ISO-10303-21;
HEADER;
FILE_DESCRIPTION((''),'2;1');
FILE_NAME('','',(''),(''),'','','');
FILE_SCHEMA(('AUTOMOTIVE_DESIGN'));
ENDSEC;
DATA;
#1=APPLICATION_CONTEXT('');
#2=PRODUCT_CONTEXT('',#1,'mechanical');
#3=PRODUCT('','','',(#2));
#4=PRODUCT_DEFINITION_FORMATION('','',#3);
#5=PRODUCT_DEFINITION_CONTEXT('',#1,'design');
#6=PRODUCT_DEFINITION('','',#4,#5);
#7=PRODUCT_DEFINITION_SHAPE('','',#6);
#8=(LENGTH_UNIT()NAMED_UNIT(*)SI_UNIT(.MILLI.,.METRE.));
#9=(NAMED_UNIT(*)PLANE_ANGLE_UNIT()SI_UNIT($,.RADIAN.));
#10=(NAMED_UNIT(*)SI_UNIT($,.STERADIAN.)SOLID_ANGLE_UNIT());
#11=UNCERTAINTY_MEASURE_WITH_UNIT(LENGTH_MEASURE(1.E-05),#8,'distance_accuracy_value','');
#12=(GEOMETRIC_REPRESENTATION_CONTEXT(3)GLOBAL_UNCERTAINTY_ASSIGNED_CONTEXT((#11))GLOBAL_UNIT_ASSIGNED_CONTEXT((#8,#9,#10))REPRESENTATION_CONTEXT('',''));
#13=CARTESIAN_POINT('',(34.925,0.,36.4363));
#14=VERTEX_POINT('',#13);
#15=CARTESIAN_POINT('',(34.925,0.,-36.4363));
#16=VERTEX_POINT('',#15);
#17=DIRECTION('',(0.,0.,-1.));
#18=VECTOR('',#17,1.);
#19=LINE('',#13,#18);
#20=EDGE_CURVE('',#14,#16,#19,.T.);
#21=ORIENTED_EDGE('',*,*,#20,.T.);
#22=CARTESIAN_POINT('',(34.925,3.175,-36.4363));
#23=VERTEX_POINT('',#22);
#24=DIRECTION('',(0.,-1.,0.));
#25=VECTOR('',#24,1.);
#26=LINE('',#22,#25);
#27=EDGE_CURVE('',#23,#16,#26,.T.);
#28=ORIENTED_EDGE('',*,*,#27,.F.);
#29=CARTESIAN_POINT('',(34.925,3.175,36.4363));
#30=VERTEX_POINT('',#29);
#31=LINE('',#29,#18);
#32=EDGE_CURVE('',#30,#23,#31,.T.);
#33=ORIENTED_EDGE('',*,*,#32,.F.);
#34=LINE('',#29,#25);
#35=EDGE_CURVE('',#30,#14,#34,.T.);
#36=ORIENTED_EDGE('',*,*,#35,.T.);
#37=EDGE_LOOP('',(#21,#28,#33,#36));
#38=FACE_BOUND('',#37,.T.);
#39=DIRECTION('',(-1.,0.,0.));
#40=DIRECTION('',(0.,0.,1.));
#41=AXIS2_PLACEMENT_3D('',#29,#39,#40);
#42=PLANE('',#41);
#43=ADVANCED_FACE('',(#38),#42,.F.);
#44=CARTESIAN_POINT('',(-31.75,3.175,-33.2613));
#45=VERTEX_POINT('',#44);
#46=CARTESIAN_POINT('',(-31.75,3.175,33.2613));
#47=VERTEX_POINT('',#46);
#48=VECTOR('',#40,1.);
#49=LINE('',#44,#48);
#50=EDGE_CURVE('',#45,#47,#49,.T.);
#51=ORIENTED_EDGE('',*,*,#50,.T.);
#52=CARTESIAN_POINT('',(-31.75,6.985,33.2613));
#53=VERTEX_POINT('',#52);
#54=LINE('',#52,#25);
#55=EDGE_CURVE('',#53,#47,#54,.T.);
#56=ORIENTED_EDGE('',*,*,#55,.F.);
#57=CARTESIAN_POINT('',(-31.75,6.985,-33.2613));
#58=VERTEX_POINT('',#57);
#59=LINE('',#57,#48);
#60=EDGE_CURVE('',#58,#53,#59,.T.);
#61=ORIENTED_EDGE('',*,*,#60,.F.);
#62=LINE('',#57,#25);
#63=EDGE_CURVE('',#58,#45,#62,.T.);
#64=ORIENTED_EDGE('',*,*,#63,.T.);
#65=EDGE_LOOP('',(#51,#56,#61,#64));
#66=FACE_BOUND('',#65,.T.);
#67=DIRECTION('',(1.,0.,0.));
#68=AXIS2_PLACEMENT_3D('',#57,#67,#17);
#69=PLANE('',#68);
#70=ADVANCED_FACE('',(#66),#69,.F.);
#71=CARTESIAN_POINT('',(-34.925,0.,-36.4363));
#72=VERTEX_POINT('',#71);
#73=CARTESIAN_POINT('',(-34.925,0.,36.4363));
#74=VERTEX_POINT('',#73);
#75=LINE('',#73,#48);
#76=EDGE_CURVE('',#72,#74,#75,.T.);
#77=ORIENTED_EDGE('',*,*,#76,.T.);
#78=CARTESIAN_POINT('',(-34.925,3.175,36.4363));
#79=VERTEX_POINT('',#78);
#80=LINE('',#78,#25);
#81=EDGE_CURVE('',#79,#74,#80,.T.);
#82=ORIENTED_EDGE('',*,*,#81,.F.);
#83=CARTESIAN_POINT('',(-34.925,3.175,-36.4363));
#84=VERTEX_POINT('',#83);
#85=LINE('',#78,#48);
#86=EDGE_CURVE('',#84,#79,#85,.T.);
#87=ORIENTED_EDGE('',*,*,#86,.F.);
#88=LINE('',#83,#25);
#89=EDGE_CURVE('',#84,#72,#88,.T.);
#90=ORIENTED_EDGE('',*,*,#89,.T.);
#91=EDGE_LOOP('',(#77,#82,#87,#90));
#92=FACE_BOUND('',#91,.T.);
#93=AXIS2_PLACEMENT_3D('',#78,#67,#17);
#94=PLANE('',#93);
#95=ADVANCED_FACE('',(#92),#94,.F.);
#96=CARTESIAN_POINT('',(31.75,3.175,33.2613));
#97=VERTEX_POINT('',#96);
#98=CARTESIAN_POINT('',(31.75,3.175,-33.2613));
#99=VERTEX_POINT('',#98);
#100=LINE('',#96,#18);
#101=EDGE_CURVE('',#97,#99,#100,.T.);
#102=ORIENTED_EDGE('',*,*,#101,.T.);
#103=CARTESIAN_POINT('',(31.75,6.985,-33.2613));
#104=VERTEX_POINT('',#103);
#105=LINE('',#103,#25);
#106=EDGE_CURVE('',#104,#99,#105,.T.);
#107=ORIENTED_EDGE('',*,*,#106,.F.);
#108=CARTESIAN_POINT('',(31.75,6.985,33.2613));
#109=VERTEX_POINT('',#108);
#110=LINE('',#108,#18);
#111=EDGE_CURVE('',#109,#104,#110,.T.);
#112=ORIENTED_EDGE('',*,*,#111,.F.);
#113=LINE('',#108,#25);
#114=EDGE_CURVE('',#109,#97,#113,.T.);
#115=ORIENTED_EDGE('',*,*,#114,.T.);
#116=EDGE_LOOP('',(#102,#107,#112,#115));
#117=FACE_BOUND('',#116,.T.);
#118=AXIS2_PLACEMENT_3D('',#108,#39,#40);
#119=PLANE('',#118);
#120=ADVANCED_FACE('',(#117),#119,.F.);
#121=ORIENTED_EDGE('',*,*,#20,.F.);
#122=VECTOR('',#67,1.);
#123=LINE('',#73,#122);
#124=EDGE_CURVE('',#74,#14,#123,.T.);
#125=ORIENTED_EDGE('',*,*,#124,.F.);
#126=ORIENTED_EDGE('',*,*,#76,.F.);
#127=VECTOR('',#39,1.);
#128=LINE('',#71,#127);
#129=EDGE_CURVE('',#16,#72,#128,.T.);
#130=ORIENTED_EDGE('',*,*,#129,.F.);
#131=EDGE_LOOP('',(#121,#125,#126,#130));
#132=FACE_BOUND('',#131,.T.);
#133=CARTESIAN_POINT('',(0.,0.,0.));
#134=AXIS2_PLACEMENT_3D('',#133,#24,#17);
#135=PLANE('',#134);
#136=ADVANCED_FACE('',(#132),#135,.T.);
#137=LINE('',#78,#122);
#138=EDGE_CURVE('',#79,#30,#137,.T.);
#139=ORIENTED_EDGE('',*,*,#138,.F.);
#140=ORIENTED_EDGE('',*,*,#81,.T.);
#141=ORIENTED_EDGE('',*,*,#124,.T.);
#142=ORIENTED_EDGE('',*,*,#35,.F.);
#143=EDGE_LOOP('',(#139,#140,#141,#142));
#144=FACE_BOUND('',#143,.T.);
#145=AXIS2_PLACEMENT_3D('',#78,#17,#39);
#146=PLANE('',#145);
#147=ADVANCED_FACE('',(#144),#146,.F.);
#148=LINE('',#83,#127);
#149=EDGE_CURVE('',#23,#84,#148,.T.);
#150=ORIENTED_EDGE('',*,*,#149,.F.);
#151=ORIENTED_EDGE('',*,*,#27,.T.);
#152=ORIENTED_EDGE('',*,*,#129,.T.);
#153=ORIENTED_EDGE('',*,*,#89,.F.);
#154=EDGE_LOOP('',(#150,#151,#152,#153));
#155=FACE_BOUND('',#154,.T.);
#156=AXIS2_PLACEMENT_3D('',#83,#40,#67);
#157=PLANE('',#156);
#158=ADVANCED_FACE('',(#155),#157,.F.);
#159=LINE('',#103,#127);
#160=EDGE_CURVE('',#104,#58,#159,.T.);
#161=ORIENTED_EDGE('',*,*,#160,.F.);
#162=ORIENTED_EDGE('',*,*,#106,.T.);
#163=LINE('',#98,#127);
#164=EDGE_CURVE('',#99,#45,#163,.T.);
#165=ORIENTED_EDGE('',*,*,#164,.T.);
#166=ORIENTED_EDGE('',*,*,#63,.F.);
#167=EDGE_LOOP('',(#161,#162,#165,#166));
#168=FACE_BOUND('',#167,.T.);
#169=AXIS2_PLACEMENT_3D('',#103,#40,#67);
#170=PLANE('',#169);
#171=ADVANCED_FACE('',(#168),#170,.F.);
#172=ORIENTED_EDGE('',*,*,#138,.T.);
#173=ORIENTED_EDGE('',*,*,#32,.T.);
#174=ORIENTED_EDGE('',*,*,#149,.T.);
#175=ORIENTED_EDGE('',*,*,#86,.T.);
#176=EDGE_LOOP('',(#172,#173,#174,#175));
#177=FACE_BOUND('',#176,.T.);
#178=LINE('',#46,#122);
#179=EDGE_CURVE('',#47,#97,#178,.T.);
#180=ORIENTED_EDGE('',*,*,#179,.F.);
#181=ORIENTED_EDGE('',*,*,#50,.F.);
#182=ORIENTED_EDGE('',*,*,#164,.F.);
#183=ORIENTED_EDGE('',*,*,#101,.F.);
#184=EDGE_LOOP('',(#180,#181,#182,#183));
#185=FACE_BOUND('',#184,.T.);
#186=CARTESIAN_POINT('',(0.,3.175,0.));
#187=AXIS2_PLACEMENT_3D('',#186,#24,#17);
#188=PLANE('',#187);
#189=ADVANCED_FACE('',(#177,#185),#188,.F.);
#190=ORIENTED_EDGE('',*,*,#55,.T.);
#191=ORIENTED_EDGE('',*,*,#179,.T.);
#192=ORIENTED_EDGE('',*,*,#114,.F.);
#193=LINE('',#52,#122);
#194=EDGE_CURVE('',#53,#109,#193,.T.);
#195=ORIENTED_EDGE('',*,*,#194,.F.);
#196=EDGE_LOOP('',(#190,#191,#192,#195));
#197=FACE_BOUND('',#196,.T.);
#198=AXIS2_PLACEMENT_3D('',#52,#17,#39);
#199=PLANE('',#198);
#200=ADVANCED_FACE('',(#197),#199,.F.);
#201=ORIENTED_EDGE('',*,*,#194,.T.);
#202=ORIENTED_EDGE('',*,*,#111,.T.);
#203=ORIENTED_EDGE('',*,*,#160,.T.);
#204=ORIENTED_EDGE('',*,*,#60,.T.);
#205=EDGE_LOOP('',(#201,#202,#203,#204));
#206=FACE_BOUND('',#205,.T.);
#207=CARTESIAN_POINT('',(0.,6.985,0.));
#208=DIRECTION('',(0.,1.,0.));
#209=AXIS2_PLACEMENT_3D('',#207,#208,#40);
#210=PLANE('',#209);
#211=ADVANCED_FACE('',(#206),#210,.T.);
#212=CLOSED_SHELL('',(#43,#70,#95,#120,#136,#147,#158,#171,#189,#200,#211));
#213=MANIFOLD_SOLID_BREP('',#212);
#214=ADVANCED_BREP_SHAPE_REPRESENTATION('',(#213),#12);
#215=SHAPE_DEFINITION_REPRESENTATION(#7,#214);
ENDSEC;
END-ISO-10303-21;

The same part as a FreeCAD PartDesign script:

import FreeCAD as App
import Part
import Sketcher

V = App.Vector
Q = App.Units.Quantity

doc = App.newDocument("Part")
body = doc.addObject("PartDesign::Body", "Body")

sketch1 = body.newObject("Sketcher::SketchObject", "Sketch")
sketch1.AttachmentSupport = (doc.getObject("XZ_Plane"), [""])
sketch1.MapMode = "FlatFace"
sketch1.addGeometry([
    Part.LineSegment(V(-35, -36, 0), V(-35, 36, 0)),
    Part.LineSegment(V(-35, 36, 0), V(35, 36, 0)),
    Part.LineSegment(V(35, 36, 0), V(35, -36, 0)),
    Part.LineSegment(V(35, -36, 0), V(-35, -36, 0)),
], False)
sketch1.addConstraint([
    Sketcher.Constraint("Coincident", 0, 2, 1, 1),
    Sketcher.Constraint("Coincident", 1, 2, 2, 1),
    Sketcher.Constraint("Coincident", 2, 2, 3, 1),
    Sketcher.Constraint("Coincident", 3, 2, 0, 1),
    Sketcher.Constraint("Vertical", 0),
    Sketcher.Constraint("Horizontal", 1),
    Sketcher.Constraint("Vertical", 2),
    Sketcher.Constraint("Horizontal", 3),
    Sketcher.Constraint("Symmetric", 0, 2, 2, 2, -1, 1),
    Sketcher.Constraint("DistanceX", 1, 1, 1, 2, Q("2.75 in")),
    Sketcher.Constraint("DistanceY", 0, 1, 0, 2, Q("2.869 in")),
])
pad1 = body.newObject("PartDesign::Pad", "Pad")
pad1.Profile = sketch1
pad1.Length = Q("0.125 in")
pad1.Reversed = True

sketch2 = body.newObject("Sketcher::SketchObject", "Sketch001")
sketch2.AttachmentSupport = (doc.getObject("XZ_Plane"), [""])
sketch2.MapMode = "FlatFace"
sketch2.AttachmentOffset = App.Placement(V(0, 0, -0.125 * 25.4), App.Rotation())
sketch2.addGeometry([
    Part.LineSegment(V(-32, -33, 0), V(-32, 33, 0)),
    Part.LineSegment(V(-32, 33, 0), V(32, 33, 0)),
    Part.LineSegment(V(32, 33, 0), V(32, -33, 0)),
    Part.LineSegment(V(32, -33, 0), V(-32, -33, 0)),
], False)
sketch2.addConstraint([
    Sketcher.Constraint("Coincident", 0, 2, 1, 1),
    Sketcher.Constraint("Coincident", 1, 2, 2, 1),
    Sketcher.Constraint("Coincident", 2, 2, 3, 1),
    Sketcher.Constraint("Coincident", 3, 2, 0, 1),
    Sketcher.Constraint("Vertical", 0),
    Sketcher.Constraint("Horizontal", 1),
    Sketcher.Constraint("Vertical", 2),
    Sketcher.Constraint("Horizontal", 3),
    Sketcher.Constraint("Symmetric", 0, 2, 2, 2, -1, 1),
    Sketcher.Constraint("DistanceX", 1, 1, 1, 2, Q("2.5 in")),
    Sketcher.Constraint("DistanceY", 0, 1, 0, 2, Q("2.619 in")),
])
pad2 = body.newObject("PartDesign::Pad", "Pad001")
pad2.Profile = sketch2
pad2.Length = Q("0.15 in")
pad2.Reversed = True

doc.recompute()
